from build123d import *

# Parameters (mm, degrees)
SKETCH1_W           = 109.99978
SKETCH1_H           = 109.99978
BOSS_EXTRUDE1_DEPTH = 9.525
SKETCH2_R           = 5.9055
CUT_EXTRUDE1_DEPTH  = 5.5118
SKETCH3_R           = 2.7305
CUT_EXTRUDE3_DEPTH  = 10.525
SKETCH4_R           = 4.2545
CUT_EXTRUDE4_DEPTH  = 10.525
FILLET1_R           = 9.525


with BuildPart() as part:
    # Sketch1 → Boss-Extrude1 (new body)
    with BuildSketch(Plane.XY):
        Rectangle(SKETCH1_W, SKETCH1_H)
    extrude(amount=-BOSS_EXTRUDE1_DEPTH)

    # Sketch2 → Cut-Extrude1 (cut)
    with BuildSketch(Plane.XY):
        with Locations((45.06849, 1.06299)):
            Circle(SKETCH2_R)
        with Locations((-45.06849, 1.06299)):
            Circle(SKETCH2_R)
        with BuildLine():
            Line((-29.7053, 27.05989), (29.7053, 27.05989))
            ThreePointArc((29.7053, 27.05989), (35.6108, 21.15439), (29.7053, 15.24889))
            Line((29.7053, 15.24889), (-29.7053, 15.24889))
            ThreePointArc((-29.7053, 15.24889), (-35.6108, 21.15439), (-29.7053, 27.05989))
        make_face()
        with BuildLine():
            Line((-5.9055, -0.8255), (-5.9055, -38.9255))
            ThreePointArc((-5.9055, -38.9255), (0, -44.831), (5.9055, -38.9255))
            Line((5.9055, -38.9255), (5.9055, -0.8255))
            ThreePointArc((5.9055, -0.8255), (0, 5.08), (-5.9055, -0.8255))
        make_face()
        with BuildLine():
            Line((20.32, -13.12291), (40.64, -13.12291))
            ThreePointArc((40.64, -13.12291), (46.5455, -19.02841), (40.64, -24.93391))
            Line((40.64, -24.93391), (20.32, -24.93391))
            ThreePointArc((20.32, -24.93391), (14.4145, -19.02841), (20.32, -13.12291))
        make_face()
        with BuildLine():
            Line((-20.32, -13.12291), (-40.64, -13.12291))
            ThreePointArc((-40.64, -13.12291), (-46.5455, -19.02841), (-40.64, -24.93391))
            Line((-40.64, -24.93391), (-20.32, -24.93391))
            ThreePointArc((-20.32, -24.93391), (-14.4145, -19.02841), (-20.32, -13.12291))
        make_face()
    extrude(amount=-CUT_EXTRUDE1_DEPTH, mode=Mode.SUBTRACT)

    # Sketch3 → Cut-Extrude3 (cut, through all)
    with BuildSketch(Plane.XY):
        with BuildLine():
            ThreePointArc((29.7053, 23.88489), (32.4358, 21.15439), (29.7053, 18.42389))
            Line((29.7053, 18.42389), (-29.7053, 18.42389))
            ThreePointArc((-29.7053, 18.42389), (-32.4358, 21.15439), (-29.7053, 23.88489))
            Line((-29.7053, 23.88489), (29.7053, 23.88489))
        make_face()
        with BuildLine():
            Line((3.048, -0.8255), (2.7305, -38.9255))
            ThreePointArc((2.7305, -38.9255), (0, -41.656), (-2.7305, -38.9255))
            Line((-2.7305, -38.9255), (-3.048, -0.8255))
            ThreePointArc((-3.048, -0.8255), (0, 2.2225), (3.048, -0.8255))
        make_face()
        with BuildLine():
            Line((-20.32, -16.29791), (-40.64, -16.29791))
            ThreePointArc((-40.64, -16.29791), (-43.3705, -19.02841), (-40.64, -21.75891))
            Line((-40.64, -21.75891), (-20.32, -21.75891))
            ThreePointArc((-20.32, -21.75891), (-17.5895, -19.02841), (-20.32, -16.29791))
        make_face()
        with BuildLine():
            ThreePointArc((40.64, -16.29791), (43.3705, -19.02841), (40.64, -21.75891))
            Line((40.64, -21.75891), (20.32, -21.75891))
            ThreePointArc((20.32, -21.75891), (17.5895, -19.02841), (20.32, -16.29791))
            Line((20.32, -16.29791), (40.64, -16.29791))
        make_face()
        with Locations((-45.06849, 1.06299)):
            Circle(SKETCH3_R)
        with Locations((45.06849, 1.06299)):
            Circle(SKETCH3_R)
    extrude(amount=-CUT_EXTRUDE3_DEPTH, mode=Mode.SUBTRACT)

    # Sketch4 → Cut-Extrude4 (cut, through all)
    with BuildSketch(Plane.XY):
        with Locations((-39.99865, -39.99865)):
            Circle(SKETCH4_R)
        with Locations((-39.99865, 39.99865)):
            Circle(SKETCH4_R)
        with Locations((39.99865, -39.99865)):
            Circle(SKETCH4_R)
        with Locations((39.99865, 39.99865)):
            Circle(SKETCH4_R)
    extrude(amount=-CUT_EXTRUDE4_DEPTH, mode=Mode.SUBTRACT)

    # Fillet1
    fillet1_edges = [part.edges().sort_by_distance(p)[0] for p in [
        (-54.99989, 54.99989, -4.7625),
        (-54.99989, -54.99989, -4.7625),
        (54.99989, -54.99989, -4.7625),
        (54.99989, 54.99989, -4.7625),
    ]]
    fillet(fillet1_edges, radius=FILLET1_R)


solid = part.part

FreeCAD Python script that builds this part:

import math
import FreeCAD as App
import Part
import Sketcher
Q = App.Units.Quantity


def edges_at(feature, points):
    """Names of the edges that pass closest to the given points."""
    edges = feature.Shape.Edges
    near = lambda p: min(range(len(edges)), key=lambda i: edges[i].distToShape(Part.Vertex(*p))[0])
    return sorted({f"Edge{near(p) + 1}" for p in points})

doc = App.newDocument("Part")
params = doc.addObject("Spreadsheet::Sheet", "Params")
for row, (alias, value) in enumerate([
    ("pad1_length", "0.375 in"),
    ("sketch2_diameter", "0.465 in"),
    ("sketch2_width", "0.8 in"),
    ("sketch2_height", "1.5 in"),
    ("sketch2_width2", "2.339 in"),
    ("pocket1_length", "0.217 in"),
    ("sketch3_radius", "0.12 in"),
    ("sketch3_diameter", "0.215 in"),
    ("sketch3_width", "0.8 in"),
    ("sketch3_width2", "2.339 in"),
    ("sketch4_diameter", "0.335 in"),
    ("fillet_radius", "0.375 in"),
], start=1):
    params.set(f"A{row}", alias)
    params.set(f"B{row}", "=" + value)
    params.setAlias(f"B{row}", alias)

body = doc.addObject("PartDesign::Body", "Body")

sketch1 = body.newObject("Sketcher::SketchObject", "Sketch")
sketch1.AttachmentSupport = (doc.getObject("XY_Plane"), [""])
sketch1.MapMode = "FlatFace"
sketch1.addGeometry([
    Part.LineSegment(App.Vector(-55, 55, 0), App.Vector(-55, -55, 0)),
    Part.LineSegment(App.Vector(-55, -55, 0), App.Vector(55, -55, 0)),
    Part.LineSegment(App.Vector(55, -55, 0), App.Vector(55, 55, 0)),
    Part.LineSegment(App.Vector(55, 55, 0), App.Vector(-55, 55, 0)),
], False)
sketch1.addConstraint([
    Sketcher.Constraint("Coincident", 0, 2, 1, 1),
    Sketcher.Constraint("Coincident", 1, 2, 2, 1),
    Sketcher.Constraint("Coincident", 2, 2, 3, 1),
    Sketcher.Constraint("Coincident", 3, 2, 0, 1),
    Sketcher.Constraint("Vertical", 0),
    Sketcher.Constraint("Horizontal", 1),
    Sketcher.Constraint("Vertical", 2),
    Sketcher.Constraint("Horizontal", 3),
    Sketcher.Constraint("Symmetric", 0, 2, 2, 2, -1, 1),
    Sketcher.Constraint("Equal", 3, 0),
    Sketcher.Constraint("DistanceX", 1, 1, 1, 2, Q("4.3307 in")),
])
pad1 = body.newObject("PartDesign::Pad", "Pad")
pad1.Profile = sketch1
pad1.setExpression("Length", "Params.pad1_length")
pad1.Reversed = True

sketch2 = body.newObject("Sketcher::SketchObject", "Sketch001")
sketch2.AttachmentSupport = (doc.getObject("XY_Plane"), [""])
sketch2.MapMode = "FlatFace"
sketch2.addGeometry([
    Part.Circle(App.Vector(45, 1, 0), App.Vector(0, 0, 1), 6),
    Part.Circle(App.Vector(-45, 1, 0), App.Vector(0, 0, 1), 6),
    Part.LineSegment(App.Vector(30, 27, 0), App.Vector(-30, 27, 0)),
    Part.ArcOfCircle(Part.Circle(App.Vector(-30, 21, 0), App.Vector(0, 0, 1), 6), math.radians(90), math.radians(270)),
    Part.LineSegment(App.Vector(-30, 15, 0), App.Vector(30, 15, 0)),
    Part.ArcOfCircle(Part.Circle(App.Vector(30, 21, 0), App.Vector(0, 0, 1), 6), math.radians(-90), math.radians(90)),
    Part.LineSegment(App.Vector(-6, -1, 0), App.Vector(-6, -39, 0)),
    Part.ArcOfCircle(Part.Circle(App.Vector(0, -39, 0), App.Vector(0, 0, 1), 6), math.radians(180), math.radians(360)),
    Part.LineSegment(App.Vector(6, -39, 0), App.Vector(6, -1, 0)),
    Part.ArcOfCircle(Part.Circle(App.Vector(0, -1, 0), App.Vector(0, 0, 1), 6), math.radians(0), math.radians(180)),
    Part.LineSegment(App.Vector(41, -13, 0), App.Vector(20, -13, 0)),
    Part.ArcOfCircle(Part.Circle(App.Vector(20, -19, 0), App.Vector(0, 0, 1), 6), math.radians(90), math.radians(270)),
    Part.LineSegment(App.Vector(20, -25, 0), App.Vector(41, -25, 0)),
    Part.ArcOfCircle(Part.Circle(App.Vector(41, -19, 0), App.Vector(0, 0, 1), 6), math.radians(-90), math.radians(90)),
    Part.LineSegment(App.Vector(-20, -13, 0), App.Vector(-41, -13, 0)),
    Part.ArcOfCircle(Part.Circle(App.Vector(-41, -19, 0), App.Vector(0, 0, 1), 6), math.radians(90), math.radians(270)),
    Part.LineSegment(App.Vector(-41, -25, 0), App.Vector(-20, -25, 0)),
    Part.ArcOfCircle(Part.Circle(App.Vector(-20, -19, 0), App.Vector(0, 0, 1), 6), math.radians(-90), math.radians(90)),
], False)
sketch2.addConstraint([
    Sketcher.Constraint("Tangent", 2, 2, 3, 1),
    Sketcher.Constraint("Tangent", 3, 2, 4, 1),
    Sketcher.Constraint("Tangent", 4, 2, 5, 1),
    Sketcher.Constraint("Tangent", 5, 2, 2, 1),
    Sketcher.Constraint("Tangent", 6, 2, 7, 1),
    Sketcher.Constraint("Tangent", 7, 2, 8, 1),
    Sketcher.Constraint("Tangent", 8, 2, 9, 1),
    Sketcher.Constraint("Tangent", 9, 2, 6, 1),
    Sketcher.Constraint("Tangent", 10, 2, 11, 1),
    Sketcher.Constraint("Tangent", 11, 2, 12, 1),
    Sketcher.Constraint("Tangent", 12, 2, 13, 1),
    Sketcher.Constraint("Tangent", 13, 2, 10, 1),
    Sketcher.Constraint("Tangent", 14, 2, 15, 1),
    Sketcher.Constraint("Tangent", 15, 2, 16, 1),
    Sketcher.Constraint("Tangent", 16, 2, 17, 1),
    Sketcher.Constraint("Tangent", 17, 2, 14, 1),
    Sketcher.Constraint("Horizontal", 2),
    Sketcher.Constraint("Horizontal", 4),
    Sketcher.Constraint("Vertical", 6),
    Sketcher.Constraint("Vertical", 8),
    Sketcher.Constraint("Horizontal", 10),
    Sketcher.Constraint("Horizontal", 12),
    Sketcher.Constraint("Horizontal", 14),
    Sketcher.Constraint("Horizontal", 16),
    Sketcher.Constraint("Equal", 0, 1),
    Sketcher.Constraint("Equal", 1, 3),
    Sketcher.Constraint("Equal", 5, 7),
    Sketcher.Constraint("Equal", 9, 11),
    Sketcher.Constraint("Equal", 13, 15),
    Sketcher.Constraint("Symmetric", 0, 3, 1, 3, -2),
    Sketcher.Constraint("Symmetric", 13, 3, 15, 3, -2),
    Sketcher.Constraint("PointOnObject", 7, 3, -2),
    Sketcher.Constraint("Equal", 12, 14),
    Sketcher.Constraint("Diameter", 0, Q("0.465 in")),
    Sketcher.Constraint("DistanceX", 10, 2, 10, 1, Q("0.8 in")),
    Sketcher.Constraint("DistanceY", 6, 2, 6, 1, Q("1.5 in")),
    Sketcher.Constraint("DistanceX", -1, 1, 11, 3, Q("0.8 in")),
    Sketcher.Constraint("DistanceX", 2, 2, 2, 1, Q("2.339 in")),
    Sketcher.Constraint("DistanceY", 1, 3, 3, 3, Q("0.791 in")),
    Sketcher.Constraint("DistanceY", 11, 3, 0, 3, Q("0.791 in")),
    Sketcher.Constraint("DistanceX", 8, 2, 4, 2, Q("0.937 in")),
    Sketcher.Constraint("DistanceY", 7, 3, -1, 1, Q("1.5325 in")),
    Sketcher.Constraint("DistanceX", 1, 3, 0, 3, Q("3.5487 in")),
    Sketcher.Constraint("DistanceY", -1, 1, 0, 3, 1.06299),
])
sketch2.setExpression("Constraints[33]", "Params.sketch2_diameter")
sketch2.setExpression("Constraints[34]", "Params.sketch2_width")
sketch2.setExpression("Constraints[35]", "Params.sketch2_height")
sketch2.setExpression("Constraints[37]", "Params.sketch2_width2")
pocket1 = body.newObject("PartDesign::Pocket", "Pocket")
pocket1.Profile = sketch2
pocket1.setExpression("Length", "Params.pocket1_length")

sketch3 = body.newObject("Sketcher::SketchObject", "Sketch002")
sketch3.AttachmentSupport = (doc.getObject("XY_Plane"), [""])
sketch3.MapMode = "FlatFace"
sketch3.addGeometry([
    Part.ArcOfCircle(Part.Circle(App.Vector(29.7, 21.2, 0), App.Vector(0, 0, 1), 2.7), math.radians(-90), math.radians(90)),
    Part.LineSegment(App.Vector(29.7, 23.9, 0), App.Vector(-29.7, 23.9, 0)),
    Part.ArcOfCircle(Part.Circle(App.Vector(-29.7, 21.2, 0), App.Vector(0, 0, 1), 2.7), math.radians(90), math.radians(270)),
    Part.LineSegment(App.Vector(-29.7, 18.4, 0), App.Vector(29.7, 18.4, 0)),
    Part.LineSegment(App.Vector(2.7, -38.9, 0), App.Vector(3, -0.8, 0)),
    Part.ArcOfCircle(Part.Circle(App.Vector(0, -0.8, 0), App.Vector(0, 0, 1), 3), math.radians(0), math.radians(180)),
    Part.LineSegment(App.Vector(-3, -0.8, 0), App.Vector(-2.7, -38.9, 0)),
    Part.ArcOfCircle(Part.Circle(App.Vector(0, -38.9, 0), App.Vector(0, 0, 1), 2.7), math.radians(180), math.radians(360)),
    Part.LineSegment(App.Vector(-20.3, -16.3, 0), App.Vector(-40.6, -16.3, 0)),
    Part.ArcOfCircle(Part.Circle(App.Vector(-40.6, -19, 0), App.Vector(0, 0, 1), 2.7), math.radians(90), math.radians(270)),
    Part.LineSegment(App.Vector(-40.6, -21.8, 0), App.Vector(-20.3, -21.8, 0)),
    Part.ArcOfCircle(Part.Circle(App.Vector(-20.3, -19, 0), App.Vector(0, 0, 1), 2.7), math.radians(-90), math.radians(90)),
    Part.ArcOfCircle(Part.Circle(App.Vector(40.6, -19, 0), App.Vector(0, 0, 1), 2.7), math.radians(-90), math.radians(90)),
    Part.LineSegment(App.Vector(40.6, -16.3, 0), App.Vector(20.3, -16.3, 0)),
    Part.ArcOfCircle(Part.Circle(App.Vector(20.3, -19, 0), App.Vector(0, 0, 1), 2.7), math.radians(90), math.radians(270)),
    Part.LineSegment(App.Vector(20.3, -21.8, 0), App.Vector(40.6, -21.8, 0)),
    Part.Circle(App.Vector(-45.1, 1.1, 0), App.Vector(0, 0, 1), 2.7),
    Part.Circle(App.Vector(45.1, 1.1, 0), App.Vector(0, 0, 1), 2.7),
], False)
sketch3.addConstraint([
    Sketcher.Constraint("Tangent", 0, 2, 1, 1),
    Sketcher.Constraint("Tangent", 1, 2, 2, 1),
    Sketcher.Constraint("Tangent", 2, 2, 3, 1),
    Sketcher.Constraint("Tangent", 3, 2, 0, 1),
    Sketcher.Constraint("Coincident", 4, 2, 5, 1),
    Sketcher.Constraint("Coincident", 5, 2, 6, 1),
    Sketcher.Constraint("Coincident", 6, 2, 7, 1),
    Sketcher.Constraint("Coincident", 7, 2, 4, 1),
    Sketcher.Constraint("Tangent", 8, 2, 9, 1),
    Sketcher.Constraint("Tangent", 9, 2, 10, 1),
    Sketcher.Constraint("Tangent", 10, 2, 11, 1),
    Sketcher.Constraint("Tangent", 11, 2, 8, 1),
    Sketcher.Constraint("Tangent", 12, 2, 13, 1),
    Sketcher.Constraint("Tangent", 13, 2, 14, 1),
    Sketcher.Constraint("Tangent", 14, 2, 15, 1),
    Sketcher.Constraint("Tangent", 15, 2, 12, 1),
    Sketcher.Constraint("Horizontal", 1),
    Sketcher.Constraint("Horizontal", 3),
    Sketcher.Constraint("Horizontal", 8),
    Sketcher.Constraint("Horizontal", 10),
    Sketcher.Constraint("Horizontal", 13),
    Sketcher.Constraint("Horizontal", 15),
    Sketcher.Constraint("Equal", 2, 7),
    Sketcher.Constraint("Equal", 7, 9),
    Sketcher.Constraint("Equal", 11, 12),
    Sketcher.Constraint("Equal", 14, 16),
    Sketcher.Constraint("Equal", 16, 17),
    Sketcher.Constraint("Symmetric", 9, 3, 12, 3, -2),
    Sketcher.Constraint("Symmetric", 16, 3, 17, 3, -2),
    Sketcher.Constraint("Symmetric", 4, 2, 5, 2, -2),
    Sketcher.Constraint("Symmetric", 6, 2, 7, 2, -2),
    Sketcher.Constraint("Horizontal", 5, 3, 4, 2),
    Sketcher.Constraint("Horizontal", 7, 3, 6, 2),
    Sketcher.Constraint("Equal", 10, 13),
    Sketcher.Constraint("Radius", 5, Q("0.12 in")),
    Sketcher.Constraint("Diameter", 16, Q("0.215 in")),
    Sketcher.Constraint("DistanceX", 8, 2, 8, 1, Q("0.8 in")),
    Sketcher.Constraint("DistanceX", 9, 3, -1, 1, Q("1.6 in")),
    Sketcher.Constraint("DistanceY", 7, 3, 5, 3, Q("1.5 in")),
    Sketcher.Constraint("DistanceX", 1, 2, 1, 1, Q("2.339 in")),
    Sketcher.Constraint("DistanceY", 9, 3, 2, 3, Q("1.582 in")),
    Sketcher.Constraint("DistanceY", 9, 3, 16, 3, Q("0.791 in")),
    Sketcher.Constraint("DistanceX", -1, 1, 0, 3, Q("1.1695 in")),
    Sketcher.Constraint("DistanceY", 5, 3, -1, 1, Q("0.0325 in")),
    Sketcher.Constraint("DistanceY", -1, 1, 0, 3, 21.15439),
    Sketcher.Constraint("DistanceX", 16, 3, -1, 1, 45.06849),
])
sketch3.setExpression("Constraints[34]", "Params.sketch3_radius")
sketch3.setExpression("Constraints[35]", "Params.sketch3_diameter")
sketch3.setExpression("Constraints[36]", "Params.sketch3_width")
sketch3.setExpression("Constraints[39]", "Params.sketch3_width2")
pocket2 = body.newObject("PartDesign::Pocket", "Pocket001")
pocket2.Profile = sketch3
pocket2.Type = "ThroughAll"

sketch4 = body.newObject("Sketcher::SketchObject", "Sketch003")
sketch4.AttachmentSupport = (doc.getObject("XY_Plane"), [""])
sketch4.MapMode = "FlatFace"
sketch4.addGeometry([
    Part.Circle(App.Vector(-40, -40, 0), App.Vector(0, 0, 1), 4.3),
    Part.Circle(App.Vector(-40, 40, 0), App.Vector(0, 0, 1), 4.3),
    Part.Circle(App.Vector(40, -40, 0), App.Vector(0, 0, 1), 4.3),
    Part.Circle(App.Vector(40, 40, 0), App.Vector(0, 0, 1), 4.3),
], False)
sketch4.addConstraint([
    Sketcher.Constraint("Equal", 0, 1),
    Sketcher.Constraint("Equal", 1, 2),
    Sketcher.Constraint("Equal", 2, 3),
    Sketcher.Constraint("Symmetric", 1, 3, 2, 3, -1, 1),
    Sketcher.Constraint("Symmetric", 0, 3, 3, 3, -1, 1),
    Sketcher.Constraint("Symmetric", 0, 3, 2, 3, -2),
    Sketcher.Constraint("Diameter", 0, Q("0.335 in")),
    Sketcher.Constraint("DistanceY", 0, 3, 1, 3, Q("3.1495 in")),
    Sketcher.Constraint("DistanceX", 0, 3, 2, 3, Q("3.1495 in")),
])
sketch4.setExpression("Constraints[6]", "Params.sketch4_diameter")
pocket3 = body.newObject("PartDesign::Pocket", "Pocket002")
pocket3.Profile = sketch4
pocket3.Type = "ThroughAll"
doc.recompute()

fillet = body.newObject("PartDesign::Fillet", "Fillet")
fillet.Base = (pocket3, edges_at(pocket3, [
    (-55, 55, -4.763),
    (-55, -55, -4.763),
    (55, -55, -4.763),
    (55, 55, -4.763),
]))
fillet.setExpression("Radius", "Params.fillet_radius")

doc.recompute()
